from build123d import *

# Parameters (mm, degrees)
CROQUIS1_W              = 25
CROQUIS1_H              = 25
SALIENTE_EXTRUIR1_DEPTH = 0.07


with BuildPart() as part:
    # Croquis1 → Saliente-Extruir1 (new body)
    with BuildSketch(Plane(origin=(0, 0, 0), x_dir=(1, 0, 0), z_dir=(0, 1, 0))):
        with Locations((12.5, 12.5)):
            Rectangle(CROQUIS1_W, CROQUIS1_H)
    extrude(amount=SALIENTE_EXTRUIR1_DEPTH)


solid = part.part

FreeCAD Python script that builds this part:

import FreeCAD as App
import Part
import Sketcher
from FreeCAD import Vector
Q = App.Units.Quantity

doc = App.newDocument("Part")
body = doc.addObject("PartDesign::Body", "Body")

sketch1 = body.newObject("Sketcher::SketchObject", "Sketch")
sketch1.AttachmentSupport = (doc.getObject("XZ_Plane"), [""])
sketch1.MapMode = "FlatFace"
sketch1.addGeometry([
    Part.LineSegment(Vector(0, -25, 0), Vector(0, 0, 0)),
    Part.LineSegment(Vector(0, 0, 0), Vector(25, 0, 0)),
    Part.LineSegment(Vector(25, 0, 0), Vector(25, -25, 0)),
    Part.LineSegment(Vector(25, -25, 0), Vector(0, -25, 0)),
], False)
sketch1.addConstraint([
    Sketcher.Constraint("Coincident", 0, 2, 1, 1),
    Sketcher.Constraint("Coincident", 1, 2, 2, 1),
    Sketcher.Constraint("Coincident", 2, 2, 3, 1),
    Sketcher.Constraint("Coincident", 3, 2, 0, 1),
    Sketcher.Constraint("Vertical", 0),
    Sketcher.Constraint("Horizontal", 1),
    Sketcher.Constraint("Vertical", 2),
    Sketcher.Constraint("Horizontal", 3),
    Sketcher.Constraint("Coincident", 0, 2, -1, 1),
    Sketcher.Constraint("Equal", 3, 0),
    Sketcher.Constraint("DistanceX", 1, 1, 1, 2, Q("25 mm")),
])
pad1 = body.newObject("PartDesign::Pad", "Pad")
pad1.Profile = sketch1
pad1.Length = 0.07
pad1.Reversed = True

doc.recompute()
